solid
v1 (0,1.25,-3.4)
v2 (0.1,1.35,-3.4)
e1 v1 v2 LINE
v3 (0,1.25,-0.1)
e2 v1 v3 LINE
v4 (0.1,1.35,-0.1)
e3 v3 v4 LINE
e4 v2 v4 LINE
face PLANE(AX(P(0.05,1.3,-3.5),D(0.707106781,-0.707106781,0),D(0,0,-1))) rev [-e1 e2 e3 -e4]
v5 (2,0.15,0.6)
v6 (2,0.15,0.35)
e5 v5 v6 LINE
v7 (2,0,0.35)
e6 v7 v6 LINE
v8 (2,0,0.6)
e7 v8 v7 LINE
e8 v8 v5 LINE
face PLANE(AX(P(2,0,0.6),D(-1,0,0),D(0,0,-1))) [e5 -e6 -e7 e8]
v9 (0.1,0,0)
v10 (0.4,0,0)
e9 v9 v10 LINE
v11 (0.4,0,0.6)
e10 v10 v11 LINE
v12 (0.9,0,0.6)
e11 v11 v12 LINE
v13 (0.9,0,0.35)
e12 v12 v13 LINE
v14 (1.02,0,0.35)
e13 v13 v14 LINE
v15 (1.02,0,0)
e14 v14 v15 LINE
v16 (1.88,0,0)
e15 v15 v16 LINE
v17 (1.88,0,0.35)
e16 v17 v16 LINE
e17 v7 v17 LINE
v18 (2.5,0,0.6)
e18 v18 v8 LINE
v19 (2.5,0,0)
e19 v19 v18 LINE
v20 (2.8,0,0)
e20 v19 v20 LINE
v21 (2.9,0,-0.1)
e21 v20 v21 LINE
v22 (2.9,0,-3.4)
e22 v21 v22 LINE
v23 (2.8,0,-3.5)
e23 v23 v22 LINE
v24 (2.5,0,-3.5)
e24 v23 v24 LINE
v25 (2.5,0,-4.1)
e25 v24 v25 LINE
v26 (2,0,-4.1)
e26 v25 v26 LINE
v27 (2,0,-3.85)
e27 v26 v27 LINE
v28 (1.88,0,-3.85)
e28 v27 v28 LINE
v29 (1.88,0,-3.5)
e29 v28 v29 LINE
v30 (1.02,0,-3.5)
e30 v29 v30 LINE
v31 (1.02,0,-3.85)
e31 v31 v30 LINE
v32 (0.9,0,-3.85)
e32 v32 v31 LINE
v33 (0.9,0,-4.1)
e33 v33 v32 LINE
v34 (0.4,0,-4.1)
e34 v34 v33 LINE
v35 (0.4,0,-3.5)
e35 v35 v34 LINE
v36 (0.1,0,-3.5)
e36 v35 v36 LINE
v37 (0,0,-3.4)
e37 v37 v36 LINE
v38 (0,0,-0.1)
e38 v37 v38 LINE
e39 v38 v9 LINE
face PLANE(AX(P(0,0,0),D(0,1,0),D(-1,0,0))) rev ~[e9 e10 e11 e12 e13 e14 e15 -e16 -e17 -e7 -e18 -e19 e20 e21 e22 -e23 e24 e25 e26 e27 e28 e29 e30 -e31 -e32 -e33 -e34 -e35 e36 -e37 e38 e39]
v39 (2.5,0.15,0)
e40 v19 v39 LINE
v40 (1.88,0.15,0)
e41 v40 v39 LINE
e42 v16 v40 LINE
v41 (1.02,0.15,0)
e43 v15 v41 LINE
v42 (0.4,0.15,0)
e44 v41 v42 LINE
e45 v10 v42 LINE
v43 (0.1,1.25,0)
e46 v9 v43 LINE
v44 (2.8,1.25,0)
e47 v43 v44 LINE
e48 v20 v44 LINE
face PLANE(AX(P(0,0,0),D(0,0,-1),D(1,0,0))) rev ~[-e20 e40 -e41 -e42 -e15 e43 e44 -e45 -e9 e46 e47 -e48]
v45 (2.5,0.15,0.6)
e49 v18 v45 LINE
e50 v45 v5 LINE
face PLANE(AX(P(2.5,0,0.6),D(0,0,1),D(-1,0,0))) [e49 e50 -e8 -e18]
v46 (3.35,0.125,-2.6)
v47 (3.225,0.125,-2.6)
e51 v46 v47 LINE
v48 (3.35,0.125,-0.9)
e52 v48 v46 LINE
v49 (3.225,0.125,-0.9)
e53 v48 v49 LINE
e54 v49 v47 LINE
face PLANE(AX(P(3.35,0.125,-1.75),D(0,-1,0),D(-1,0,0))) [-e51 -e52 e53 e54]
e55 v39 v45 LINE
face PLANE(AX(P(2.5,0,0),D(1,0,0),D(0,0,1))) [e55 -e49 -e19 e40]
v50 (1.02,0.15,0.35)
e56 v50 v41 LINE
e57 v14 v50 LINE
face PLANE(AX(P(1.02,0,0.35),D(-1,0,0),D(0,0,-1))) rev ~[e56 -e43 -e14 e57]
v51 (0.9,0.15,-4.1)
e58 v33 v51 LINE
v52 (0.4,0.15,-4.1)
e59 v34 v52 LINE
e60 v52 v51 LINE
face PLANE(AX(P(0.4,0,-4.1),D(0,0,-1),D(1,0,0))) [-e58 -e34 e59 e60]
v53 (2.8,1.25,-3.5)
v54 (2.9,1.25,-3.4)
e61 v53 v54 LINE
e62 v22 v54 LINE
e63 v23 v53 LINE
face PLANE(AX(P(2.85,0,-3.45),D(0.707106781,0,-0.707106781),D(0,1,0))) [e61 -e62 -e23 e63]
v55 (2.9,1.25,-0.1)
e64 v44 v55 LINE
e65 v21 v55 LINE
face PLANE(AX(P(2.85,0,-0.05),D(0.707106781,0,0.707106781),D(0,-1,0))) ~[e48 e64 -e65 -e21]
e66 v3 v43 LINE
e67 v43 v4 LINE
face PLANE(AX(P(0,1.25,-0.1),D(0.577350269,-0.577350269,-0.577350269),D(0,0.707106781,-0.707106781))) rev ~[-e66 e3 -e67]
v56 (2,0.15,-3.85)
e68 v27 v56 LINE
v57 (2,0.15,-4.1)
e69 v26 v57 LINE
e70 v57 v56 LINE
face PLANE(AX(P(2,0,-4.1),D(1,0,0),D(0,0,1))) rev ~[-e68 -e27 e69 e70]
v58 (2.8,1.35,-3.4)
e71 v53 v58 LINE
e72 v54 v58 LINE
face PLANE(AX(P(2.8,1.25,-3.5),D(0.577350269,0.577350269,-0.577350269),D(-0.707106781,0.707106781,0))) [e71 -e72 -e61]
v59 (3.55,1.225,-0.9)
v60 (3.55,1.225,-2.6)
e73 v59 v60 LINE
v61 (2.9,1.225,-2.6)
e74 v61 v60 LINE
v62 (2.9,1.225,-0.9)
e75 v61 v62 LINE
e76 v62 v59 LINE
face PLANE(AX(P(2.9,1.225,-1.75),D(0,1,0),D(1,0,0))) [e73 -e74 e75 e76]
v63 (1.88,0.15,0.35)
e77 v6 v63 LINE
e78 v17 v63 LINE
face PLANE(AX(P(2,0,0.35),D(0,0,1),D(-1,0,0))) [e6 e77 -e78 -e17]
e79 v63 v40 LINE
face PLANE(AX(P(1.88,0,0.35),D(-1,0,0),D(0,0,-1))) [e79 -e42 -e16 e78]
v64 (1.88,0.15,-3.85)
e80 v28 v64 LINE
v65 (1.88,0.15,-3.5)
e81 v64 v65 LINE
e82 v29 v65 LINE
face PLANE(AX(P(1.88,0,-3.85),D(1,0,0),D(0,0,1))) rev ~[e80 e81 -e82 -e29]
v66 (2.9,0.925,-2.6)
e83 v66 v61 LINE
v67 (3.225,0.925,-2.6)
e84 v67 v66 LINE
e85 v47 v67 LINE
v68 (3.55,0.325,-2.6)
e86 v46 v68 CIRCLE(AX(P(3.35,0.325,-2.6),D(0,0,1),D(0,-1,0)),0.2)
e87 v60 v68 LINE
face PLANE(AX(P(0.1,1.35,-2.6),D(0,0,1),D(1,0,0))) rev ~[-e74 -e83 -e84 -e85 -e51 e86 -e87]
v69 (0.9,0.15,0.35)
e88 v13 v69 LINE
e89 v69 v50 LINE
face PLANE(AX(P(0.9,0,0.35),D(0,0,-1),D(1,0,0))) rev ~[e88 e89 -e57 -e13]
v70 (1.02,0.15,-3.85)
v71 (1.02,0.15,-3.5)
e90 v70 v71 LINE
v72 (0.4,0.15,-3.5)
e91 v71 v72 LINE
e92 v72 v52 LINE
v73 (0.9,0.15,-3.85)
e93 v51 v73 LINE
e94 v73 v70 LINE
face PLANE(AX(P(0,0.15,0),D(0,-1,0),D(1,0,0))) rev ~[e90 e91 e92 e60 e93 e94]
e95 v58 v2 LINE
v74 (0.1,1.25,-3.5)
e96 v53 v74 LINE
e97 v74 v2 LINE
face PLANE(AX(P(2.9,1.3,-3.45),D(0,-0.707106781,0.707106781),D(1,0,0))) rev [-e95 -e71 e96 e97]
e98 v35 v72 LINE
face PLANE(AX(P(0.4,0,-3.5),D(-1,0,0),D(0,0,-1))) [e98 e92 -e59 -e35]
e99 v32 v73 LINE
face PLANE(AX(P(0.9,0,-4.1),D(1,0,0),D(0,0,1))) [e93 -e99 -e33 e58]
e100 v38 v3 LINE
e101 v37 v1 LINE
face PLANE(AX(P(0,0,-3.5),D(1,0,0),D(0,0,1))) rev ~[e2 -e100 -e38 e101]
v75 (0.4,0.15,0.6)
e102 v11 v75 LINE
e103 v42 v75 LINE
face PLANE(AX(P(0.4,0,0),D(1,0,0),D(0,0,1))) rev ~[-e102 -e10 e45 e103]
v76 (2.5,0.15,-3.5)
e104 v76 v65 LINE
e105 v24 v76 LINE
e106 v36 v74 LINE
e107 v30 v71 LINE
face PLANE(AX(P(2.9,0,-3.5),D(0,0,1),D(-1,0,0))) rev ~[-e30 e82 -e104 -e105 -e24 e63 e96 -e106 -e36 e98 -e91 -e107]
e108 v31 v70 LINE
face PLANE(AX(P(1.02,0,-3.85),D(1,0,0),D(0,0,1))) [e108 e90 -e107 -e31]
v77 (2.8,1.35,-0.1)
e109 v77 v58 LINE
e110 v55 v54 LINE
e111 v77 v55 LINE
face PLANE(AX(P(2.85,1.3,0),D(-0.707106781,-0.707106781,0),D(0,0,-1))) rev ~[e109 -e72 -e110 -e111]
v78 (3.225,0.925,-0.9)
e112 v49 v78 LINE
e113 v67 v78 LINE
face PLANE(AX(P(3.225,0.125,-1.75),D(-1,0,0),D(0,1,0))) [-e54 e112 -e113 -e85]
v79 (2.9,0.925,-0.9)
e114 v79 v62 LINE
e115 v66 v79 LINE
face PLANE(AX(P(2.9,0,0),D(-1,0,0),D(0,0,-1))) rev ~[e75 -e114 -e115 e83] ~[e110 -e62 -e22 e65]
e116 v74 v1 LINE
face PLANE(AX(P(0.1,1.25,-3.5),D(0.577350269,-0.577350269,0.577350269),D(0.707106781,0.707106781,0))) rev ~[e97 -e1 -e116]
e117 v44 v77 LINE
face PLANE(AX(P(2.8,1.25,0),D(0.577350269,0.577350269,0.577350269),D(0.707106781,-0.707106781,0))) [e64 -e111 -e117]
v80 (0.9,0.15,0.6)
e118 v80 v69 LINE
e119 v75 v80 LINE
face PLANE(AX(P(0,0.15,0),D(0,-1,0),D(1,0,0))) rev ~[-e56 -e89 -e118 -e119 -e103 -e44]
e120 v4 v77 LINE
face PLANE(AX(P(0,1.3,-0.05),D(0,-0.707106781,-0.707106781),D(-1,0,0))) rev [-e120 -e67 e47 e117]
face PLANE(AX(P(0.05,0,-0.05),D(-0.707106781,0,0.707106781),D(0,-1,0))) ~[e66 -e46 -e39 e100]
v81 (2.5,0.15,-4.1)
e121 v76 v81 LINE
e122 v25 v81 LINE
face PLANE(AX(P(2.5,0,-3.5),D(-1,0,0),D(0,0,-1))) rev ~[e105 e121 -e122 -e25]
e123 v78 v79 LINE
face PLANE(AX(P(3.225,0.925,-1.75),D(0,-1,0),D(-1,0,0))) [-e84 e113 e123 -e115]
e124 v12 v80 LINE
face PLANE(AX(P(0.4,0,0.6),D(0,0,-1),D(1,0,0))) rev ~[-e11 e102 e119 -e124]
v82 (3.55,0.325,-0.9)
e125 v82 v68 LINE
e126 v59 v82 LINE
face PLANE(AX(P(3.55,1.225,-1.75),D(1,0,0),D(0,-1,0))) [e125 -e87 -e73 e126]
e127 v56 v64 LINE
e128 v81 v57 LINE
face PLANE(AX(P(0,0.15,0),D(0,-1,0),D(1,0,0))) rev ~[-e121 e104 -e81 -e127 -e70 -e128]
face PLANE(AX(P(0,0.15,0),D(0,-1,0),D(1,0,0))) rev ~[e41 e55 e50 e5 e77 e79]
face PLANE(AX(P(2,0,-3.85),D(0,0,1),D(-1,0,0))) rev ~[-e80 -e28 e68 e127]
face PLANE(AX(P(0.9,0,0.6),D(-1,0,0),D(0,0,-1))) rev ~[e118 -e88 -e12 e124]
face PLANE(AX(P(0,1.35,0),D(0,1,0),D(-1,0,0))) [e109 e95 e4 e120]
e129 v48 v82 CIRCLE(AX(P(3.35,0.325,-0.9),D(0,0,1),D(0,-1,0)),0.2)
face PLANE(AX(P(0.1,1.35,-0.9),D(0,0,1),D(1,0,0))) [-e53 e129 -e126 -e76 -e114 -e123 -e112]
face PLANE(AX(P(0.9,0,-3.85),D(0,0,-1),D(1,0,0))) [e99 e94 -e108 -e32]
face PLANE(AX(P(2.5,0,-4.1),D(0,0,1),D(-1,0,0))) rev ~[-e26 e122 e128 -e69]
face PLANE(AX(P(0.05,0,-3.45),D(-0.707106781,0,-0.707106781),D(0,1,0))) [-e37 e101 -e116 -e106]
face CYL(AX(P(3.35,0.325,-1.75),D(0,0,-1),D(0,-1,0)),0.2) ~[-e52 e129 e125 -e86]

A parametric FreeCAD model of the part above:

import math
import FreeCAD as App
import Part
import Sketcher

V = App.Vector


def edges_at(feature, points):
    """Names of the edges that pass closest to the given points."""
    edges = feature.Shape.Edges
    near = lambda p: min(range(len(edges)), key=lambda i: edges[i].distToShape(Part.Vertex(*p))[0])
    return sorted({f"Edge{near(p) + 1}" for p in points})


def add_polygon(sketch, points):
    """Adds a closed chain of lines whose ends are joined by coincident constraints."""
    first, n = sketch.GeometryCount, len(points)
    for a, b in zip(points, points[1:] + points[:1]):
        sketch.addGeometry(Part.LineSegment(App.Vector(*a, 0), App.Vector(*b, 0)), False)
    for i in range(n):
        sketch.addConstraint(Sketcher.Constraint("Coincident", first + i, 2, first + (i + 1) % n, 1))

doc = App.newDocument("Part")
body = doc.addObject("PartDesign::Body", "Body")

# Sketch on XZ plane
sketch1 = body.newObject("Sketcher::SketchObject", "Sketch")
sketch1.AttachmentSupport = (doc.getObject("XZ_Plane"), [""])
sketch1.MapMode = "FlatFace"
add_polygon(sketch1, [(0, -3.5), (0, 0), (2.9, 0), (2.9, -3.5)])  # lines 0-3
sketch1.addConstraint([
    Sketcher.Constraint("Vertical", 0),
    Sketcher.Constraint("Horizontal", 1),
    Sketcher.Constraint("Vertical", 2),
    Sketcher.Constraint("Horizontal", 3),
    Sketcher.Constraint("Coincident", 0, 2, -1, 1),
    Sketcher.Constraint("DistanceX", 1, 1, 1, 2, 2.9),
    Sketcher.Constraint("DistanceY", 0, 1, 0, 2, 3.5),
])
pad1 = body.newObject("PartDesign::Pad", "Pad")
pad1.Profile = sketch1
pad1.Length = 1.35
pad1.Reversed = True

# Sketch on XZ plane
sketch2 = body.newObject("Sketcher::SketchObject", "Sketch001")
sketch2.AttachmentSupport = (doc.getObject("XZ_Plane"), [""])
sketch2.MapMode = "FlatFace"
add_polygon(sketch2, [(1.02, -3.5), (0.4, -3.5), (0.4, -4.1), (0.9, -4.1), (0.9, -3.85), (1.02, -3.85)])  # lines 0-5
add_polygon(sketch2, [(2.5, -3.5), (1.88, -3.5), (1.88, -3.85), (2, -3.85), (2, -4.1), (2.5, -4.1)])  # lines 6-11
add_polygon(sketch2, [(0.4, 0.6), (0.4, 0), (1.02, 0), (1.02, 0.35), (0.9, 0.35), (0.9, 0.6)])  # lines 12-17
add_polygon(sketch2, [(1.88, 0), (2.5, 0), (2.5, 0.6), (2, 0.6), (2, 0.35), (1.88, 0.35)])  # lines 18-23
sketch2.addConstraint([
    Sketcher.Constraint("Horizontal", 0),
    Sketcher.Constraint("Vertical", 1),
    Sketcher.Constraint("Horizontal", 2),
    Sketcher.Constraint("Vertical", 3),
    Sketcher.Constraint("Horizontal", 4),
    Sketcher.Constraint("Vertical", 5),
    Sketcher.Constraint("Horizontal", 6),
    Sketcher.Constraint("Vertical", 7),
    Sketcher.Constraint("Horizontal", 8),
    Sketcher.Constraint("Vertical", 9),
    Sketcher.Constraint("Horizontal", 10),
    Sketcher.Constraint("Vertical", 11),
    Sketcher.Constraint("Vertical", 12),
    Sketcher.Constraint("Horizontal", 13),
    Sketcher.Constraint("Vertical", 14),
    Sketcher.Constraint("Horizontal", 15),
    Sketcher.Constraint("Vertical", 16),
    Sketcher.Constraint("Horizontal", 17),
    Sketcher.Constraint("Horizontal", 18),
    Sketcher.Constraint("Vertical", 19),
    Sketcher.Constraint("Horizontal", 20),
    Sketcher.Constraint("Vertical", 21),
    Sketcher.Constraint("Horizontal", 22),
    Sketcher.Constraint("Vertical", 23),
    Sketcher.Constraint("PointOnObject", 12, 2, -1),
    Sketcher.Constraint("PointOnObject", 18, 2, -1),
    Sketcher.Constraint("Horizontal", 5, 2, 6, 2),
    Sketcher.Constraint("Horizontal", 4, 2, 7, 2),
    Sketcher.Constraint("Horizontal", 2, 2, 9, 2),
    Sketcher.Constraint("Horizontal", 17, 2, 19, 2),
    Sketcher.Constraint("Horizontal", 15, 2, 21, 2),
    Sketcher.Constraint("Vertical", 1, 2, 12, 2),
    Sketcher.Constraint("Vertical", 5, 2, 13, 2),
    Sketcher.Constraint("Vertical", 3, 2, 15, 2),
    Sketcher.Constraint("Vertical", 11, 2, 18, 2),
    Sketcher.Constraint("Vertical", 9, 2, 20, 2),
    Sketcher.Constraint("Vertical", 7, 2, 22, 2),
    Sketcher.Constraint("Equal", 0, 6),
    Sketcher.Constraint("Equal", 4, 8),
    Sketcher.Constraint("Equal", 11, 12),
    Sketcher.Constraint("Equal", 7, 14),
    Sketcher.Constraint("DistanceX", 2, 1, 2, 2, 0.5),
    Sketcher.Constraint("DistanceX", 0, 2, 0, 1, 0.62),
    Sketcher.Constraint("DistanceY", 3, 1, 3, 2, 0.25),
    Sketcher.Constraint("DistanceX", 5, 2, 6, 2, 0.86),
    Sketcher.Constraint("DistanceY", 1, 2, 1, 1, 0.6),
    Sketcher.Constraint("DistanceX", -1, 1, 8, 2, 2.0),
    Sketcher.Constraint("DistanceY", 0, 2, -1, 1, 3.5),
])
pad2 = body.newObject("PartDesign::Pad", "Pad001")
pad2.Profile = sketch2
pad2.Length = 0.15
pad2.Reversed = True
doc.recompute()

chamfer = body.newObject("PartDesign::Chamfer", "Chamfer")
chamfer.Base = (pad2, edges_at(pad2, [
    (2.9, 1.35, -1.75),
    (1.45, 1.35, 0),
    (2.9, 0.675, 0),
    (2.9, 0.675, -3.5),
    (0, 0.675, 0),
    (0, 1.35, -1.75),
    (0, 0.675, -3.5),
    (1.45, 1.35, -3.5),
]))
chamfer.Size = 0.1

# Sketch on XY plane
sketch3 = body.newObject("Sketcher::SketchObject", "Sketch002")
sketch3.AttachmentSupport = (doc.getObject("XY_Plane"), [""])
sketch3.MapMode = "FlatFace"
sketch3.AttachmentOffset = App.Placement(V(0, 0, -1.75), App.Rotation())
sketch3.addGeometry([
    Part.LineSegment(V(3.55, 1.225, 0), V(2.9, 1.225, 0)),  # 0
    Part.LineSegment(V(2.9, 1.225, 0), V(2.9, 0.925, 0)),  # 1
    Part.LineSegment(V(2.9, 0.925, 0), V(3.225, 0.925, 0)),  # 2
    Part.LineSegment(V(3.225, 0.925, 0), V(3.225, 0.125, 0)),  # 3
    Part.LineSegment(V(3.225, 0.125, 0), V(3.35, 0.125, 0)),  # 4
    Part.ArcOfCircle(Part.Circle(V(3.35, 0.325, 0), V(0, 0, 1), 0.2), math.radians(-90), math.radians(0)),  # 5
    Part.LineSegment(V(3.55, 0.325, 0), V(3.55, 1.225, 0)),  # 6
], False)
sketch3.addConstraint([
    Sketcher.Constraint("Coincident", 0, 2, 1, 1),
    Sketcher.Constraint("Coincident", 1, 2, 2, 1),
    Sketcher.Constraint("Coincident", 2, 2, 3, 1),
    Sketcher.Constraint("Coincident", 3, 2, 4, 1),
    Sketcher.Constraint("Tangent", 4, 2, 5, 1),
    Sketcher.Constraint("Tangent", 5, 2, 6, 1),
    Sketcher.Constraint("Coincident", 6, 2, 0, 1),
    Sketcher.Constraint("Horizontal", 0),
    Sketcher.Constraint("Vertical", 1),
    Sketcher.Constraint("Horizontal", 2),
    Sketcher.Constraint("Vertical", 3),
    Sketcher.Constraint("Horizontal", 4),
    Sketcher.Constraint("Vertical", 6),
    Sketcher.Constraint("Radius", 5, 0.2),
    Sketcher.Constraint("DistanceY", 1, 2, 1, 1, 0.3),
    Sketcher.Constraint("DistanceY", 3, 2, 0, 2, 1.1),
    Sketcher.Constraint("DistanceX", 4, 1, 4, 2, 0.125),
    Sketcher.Constraint("DistanceX", -1, 1, 5, 2, 3.55),
    Sketcher.Constraint("DistanceY", -1, 1, 3, 2, 0.125),
    Sketcher.Constraint("DistanceX", 0, 2, 0, 1, 0.65),
])
pad3 = body.newObject("PartDesign::Pad", "Pad002")
pad3.Profile = sketch3
pad3.Length = 1.7
pad3.Midplane = True

doc.recompute()
